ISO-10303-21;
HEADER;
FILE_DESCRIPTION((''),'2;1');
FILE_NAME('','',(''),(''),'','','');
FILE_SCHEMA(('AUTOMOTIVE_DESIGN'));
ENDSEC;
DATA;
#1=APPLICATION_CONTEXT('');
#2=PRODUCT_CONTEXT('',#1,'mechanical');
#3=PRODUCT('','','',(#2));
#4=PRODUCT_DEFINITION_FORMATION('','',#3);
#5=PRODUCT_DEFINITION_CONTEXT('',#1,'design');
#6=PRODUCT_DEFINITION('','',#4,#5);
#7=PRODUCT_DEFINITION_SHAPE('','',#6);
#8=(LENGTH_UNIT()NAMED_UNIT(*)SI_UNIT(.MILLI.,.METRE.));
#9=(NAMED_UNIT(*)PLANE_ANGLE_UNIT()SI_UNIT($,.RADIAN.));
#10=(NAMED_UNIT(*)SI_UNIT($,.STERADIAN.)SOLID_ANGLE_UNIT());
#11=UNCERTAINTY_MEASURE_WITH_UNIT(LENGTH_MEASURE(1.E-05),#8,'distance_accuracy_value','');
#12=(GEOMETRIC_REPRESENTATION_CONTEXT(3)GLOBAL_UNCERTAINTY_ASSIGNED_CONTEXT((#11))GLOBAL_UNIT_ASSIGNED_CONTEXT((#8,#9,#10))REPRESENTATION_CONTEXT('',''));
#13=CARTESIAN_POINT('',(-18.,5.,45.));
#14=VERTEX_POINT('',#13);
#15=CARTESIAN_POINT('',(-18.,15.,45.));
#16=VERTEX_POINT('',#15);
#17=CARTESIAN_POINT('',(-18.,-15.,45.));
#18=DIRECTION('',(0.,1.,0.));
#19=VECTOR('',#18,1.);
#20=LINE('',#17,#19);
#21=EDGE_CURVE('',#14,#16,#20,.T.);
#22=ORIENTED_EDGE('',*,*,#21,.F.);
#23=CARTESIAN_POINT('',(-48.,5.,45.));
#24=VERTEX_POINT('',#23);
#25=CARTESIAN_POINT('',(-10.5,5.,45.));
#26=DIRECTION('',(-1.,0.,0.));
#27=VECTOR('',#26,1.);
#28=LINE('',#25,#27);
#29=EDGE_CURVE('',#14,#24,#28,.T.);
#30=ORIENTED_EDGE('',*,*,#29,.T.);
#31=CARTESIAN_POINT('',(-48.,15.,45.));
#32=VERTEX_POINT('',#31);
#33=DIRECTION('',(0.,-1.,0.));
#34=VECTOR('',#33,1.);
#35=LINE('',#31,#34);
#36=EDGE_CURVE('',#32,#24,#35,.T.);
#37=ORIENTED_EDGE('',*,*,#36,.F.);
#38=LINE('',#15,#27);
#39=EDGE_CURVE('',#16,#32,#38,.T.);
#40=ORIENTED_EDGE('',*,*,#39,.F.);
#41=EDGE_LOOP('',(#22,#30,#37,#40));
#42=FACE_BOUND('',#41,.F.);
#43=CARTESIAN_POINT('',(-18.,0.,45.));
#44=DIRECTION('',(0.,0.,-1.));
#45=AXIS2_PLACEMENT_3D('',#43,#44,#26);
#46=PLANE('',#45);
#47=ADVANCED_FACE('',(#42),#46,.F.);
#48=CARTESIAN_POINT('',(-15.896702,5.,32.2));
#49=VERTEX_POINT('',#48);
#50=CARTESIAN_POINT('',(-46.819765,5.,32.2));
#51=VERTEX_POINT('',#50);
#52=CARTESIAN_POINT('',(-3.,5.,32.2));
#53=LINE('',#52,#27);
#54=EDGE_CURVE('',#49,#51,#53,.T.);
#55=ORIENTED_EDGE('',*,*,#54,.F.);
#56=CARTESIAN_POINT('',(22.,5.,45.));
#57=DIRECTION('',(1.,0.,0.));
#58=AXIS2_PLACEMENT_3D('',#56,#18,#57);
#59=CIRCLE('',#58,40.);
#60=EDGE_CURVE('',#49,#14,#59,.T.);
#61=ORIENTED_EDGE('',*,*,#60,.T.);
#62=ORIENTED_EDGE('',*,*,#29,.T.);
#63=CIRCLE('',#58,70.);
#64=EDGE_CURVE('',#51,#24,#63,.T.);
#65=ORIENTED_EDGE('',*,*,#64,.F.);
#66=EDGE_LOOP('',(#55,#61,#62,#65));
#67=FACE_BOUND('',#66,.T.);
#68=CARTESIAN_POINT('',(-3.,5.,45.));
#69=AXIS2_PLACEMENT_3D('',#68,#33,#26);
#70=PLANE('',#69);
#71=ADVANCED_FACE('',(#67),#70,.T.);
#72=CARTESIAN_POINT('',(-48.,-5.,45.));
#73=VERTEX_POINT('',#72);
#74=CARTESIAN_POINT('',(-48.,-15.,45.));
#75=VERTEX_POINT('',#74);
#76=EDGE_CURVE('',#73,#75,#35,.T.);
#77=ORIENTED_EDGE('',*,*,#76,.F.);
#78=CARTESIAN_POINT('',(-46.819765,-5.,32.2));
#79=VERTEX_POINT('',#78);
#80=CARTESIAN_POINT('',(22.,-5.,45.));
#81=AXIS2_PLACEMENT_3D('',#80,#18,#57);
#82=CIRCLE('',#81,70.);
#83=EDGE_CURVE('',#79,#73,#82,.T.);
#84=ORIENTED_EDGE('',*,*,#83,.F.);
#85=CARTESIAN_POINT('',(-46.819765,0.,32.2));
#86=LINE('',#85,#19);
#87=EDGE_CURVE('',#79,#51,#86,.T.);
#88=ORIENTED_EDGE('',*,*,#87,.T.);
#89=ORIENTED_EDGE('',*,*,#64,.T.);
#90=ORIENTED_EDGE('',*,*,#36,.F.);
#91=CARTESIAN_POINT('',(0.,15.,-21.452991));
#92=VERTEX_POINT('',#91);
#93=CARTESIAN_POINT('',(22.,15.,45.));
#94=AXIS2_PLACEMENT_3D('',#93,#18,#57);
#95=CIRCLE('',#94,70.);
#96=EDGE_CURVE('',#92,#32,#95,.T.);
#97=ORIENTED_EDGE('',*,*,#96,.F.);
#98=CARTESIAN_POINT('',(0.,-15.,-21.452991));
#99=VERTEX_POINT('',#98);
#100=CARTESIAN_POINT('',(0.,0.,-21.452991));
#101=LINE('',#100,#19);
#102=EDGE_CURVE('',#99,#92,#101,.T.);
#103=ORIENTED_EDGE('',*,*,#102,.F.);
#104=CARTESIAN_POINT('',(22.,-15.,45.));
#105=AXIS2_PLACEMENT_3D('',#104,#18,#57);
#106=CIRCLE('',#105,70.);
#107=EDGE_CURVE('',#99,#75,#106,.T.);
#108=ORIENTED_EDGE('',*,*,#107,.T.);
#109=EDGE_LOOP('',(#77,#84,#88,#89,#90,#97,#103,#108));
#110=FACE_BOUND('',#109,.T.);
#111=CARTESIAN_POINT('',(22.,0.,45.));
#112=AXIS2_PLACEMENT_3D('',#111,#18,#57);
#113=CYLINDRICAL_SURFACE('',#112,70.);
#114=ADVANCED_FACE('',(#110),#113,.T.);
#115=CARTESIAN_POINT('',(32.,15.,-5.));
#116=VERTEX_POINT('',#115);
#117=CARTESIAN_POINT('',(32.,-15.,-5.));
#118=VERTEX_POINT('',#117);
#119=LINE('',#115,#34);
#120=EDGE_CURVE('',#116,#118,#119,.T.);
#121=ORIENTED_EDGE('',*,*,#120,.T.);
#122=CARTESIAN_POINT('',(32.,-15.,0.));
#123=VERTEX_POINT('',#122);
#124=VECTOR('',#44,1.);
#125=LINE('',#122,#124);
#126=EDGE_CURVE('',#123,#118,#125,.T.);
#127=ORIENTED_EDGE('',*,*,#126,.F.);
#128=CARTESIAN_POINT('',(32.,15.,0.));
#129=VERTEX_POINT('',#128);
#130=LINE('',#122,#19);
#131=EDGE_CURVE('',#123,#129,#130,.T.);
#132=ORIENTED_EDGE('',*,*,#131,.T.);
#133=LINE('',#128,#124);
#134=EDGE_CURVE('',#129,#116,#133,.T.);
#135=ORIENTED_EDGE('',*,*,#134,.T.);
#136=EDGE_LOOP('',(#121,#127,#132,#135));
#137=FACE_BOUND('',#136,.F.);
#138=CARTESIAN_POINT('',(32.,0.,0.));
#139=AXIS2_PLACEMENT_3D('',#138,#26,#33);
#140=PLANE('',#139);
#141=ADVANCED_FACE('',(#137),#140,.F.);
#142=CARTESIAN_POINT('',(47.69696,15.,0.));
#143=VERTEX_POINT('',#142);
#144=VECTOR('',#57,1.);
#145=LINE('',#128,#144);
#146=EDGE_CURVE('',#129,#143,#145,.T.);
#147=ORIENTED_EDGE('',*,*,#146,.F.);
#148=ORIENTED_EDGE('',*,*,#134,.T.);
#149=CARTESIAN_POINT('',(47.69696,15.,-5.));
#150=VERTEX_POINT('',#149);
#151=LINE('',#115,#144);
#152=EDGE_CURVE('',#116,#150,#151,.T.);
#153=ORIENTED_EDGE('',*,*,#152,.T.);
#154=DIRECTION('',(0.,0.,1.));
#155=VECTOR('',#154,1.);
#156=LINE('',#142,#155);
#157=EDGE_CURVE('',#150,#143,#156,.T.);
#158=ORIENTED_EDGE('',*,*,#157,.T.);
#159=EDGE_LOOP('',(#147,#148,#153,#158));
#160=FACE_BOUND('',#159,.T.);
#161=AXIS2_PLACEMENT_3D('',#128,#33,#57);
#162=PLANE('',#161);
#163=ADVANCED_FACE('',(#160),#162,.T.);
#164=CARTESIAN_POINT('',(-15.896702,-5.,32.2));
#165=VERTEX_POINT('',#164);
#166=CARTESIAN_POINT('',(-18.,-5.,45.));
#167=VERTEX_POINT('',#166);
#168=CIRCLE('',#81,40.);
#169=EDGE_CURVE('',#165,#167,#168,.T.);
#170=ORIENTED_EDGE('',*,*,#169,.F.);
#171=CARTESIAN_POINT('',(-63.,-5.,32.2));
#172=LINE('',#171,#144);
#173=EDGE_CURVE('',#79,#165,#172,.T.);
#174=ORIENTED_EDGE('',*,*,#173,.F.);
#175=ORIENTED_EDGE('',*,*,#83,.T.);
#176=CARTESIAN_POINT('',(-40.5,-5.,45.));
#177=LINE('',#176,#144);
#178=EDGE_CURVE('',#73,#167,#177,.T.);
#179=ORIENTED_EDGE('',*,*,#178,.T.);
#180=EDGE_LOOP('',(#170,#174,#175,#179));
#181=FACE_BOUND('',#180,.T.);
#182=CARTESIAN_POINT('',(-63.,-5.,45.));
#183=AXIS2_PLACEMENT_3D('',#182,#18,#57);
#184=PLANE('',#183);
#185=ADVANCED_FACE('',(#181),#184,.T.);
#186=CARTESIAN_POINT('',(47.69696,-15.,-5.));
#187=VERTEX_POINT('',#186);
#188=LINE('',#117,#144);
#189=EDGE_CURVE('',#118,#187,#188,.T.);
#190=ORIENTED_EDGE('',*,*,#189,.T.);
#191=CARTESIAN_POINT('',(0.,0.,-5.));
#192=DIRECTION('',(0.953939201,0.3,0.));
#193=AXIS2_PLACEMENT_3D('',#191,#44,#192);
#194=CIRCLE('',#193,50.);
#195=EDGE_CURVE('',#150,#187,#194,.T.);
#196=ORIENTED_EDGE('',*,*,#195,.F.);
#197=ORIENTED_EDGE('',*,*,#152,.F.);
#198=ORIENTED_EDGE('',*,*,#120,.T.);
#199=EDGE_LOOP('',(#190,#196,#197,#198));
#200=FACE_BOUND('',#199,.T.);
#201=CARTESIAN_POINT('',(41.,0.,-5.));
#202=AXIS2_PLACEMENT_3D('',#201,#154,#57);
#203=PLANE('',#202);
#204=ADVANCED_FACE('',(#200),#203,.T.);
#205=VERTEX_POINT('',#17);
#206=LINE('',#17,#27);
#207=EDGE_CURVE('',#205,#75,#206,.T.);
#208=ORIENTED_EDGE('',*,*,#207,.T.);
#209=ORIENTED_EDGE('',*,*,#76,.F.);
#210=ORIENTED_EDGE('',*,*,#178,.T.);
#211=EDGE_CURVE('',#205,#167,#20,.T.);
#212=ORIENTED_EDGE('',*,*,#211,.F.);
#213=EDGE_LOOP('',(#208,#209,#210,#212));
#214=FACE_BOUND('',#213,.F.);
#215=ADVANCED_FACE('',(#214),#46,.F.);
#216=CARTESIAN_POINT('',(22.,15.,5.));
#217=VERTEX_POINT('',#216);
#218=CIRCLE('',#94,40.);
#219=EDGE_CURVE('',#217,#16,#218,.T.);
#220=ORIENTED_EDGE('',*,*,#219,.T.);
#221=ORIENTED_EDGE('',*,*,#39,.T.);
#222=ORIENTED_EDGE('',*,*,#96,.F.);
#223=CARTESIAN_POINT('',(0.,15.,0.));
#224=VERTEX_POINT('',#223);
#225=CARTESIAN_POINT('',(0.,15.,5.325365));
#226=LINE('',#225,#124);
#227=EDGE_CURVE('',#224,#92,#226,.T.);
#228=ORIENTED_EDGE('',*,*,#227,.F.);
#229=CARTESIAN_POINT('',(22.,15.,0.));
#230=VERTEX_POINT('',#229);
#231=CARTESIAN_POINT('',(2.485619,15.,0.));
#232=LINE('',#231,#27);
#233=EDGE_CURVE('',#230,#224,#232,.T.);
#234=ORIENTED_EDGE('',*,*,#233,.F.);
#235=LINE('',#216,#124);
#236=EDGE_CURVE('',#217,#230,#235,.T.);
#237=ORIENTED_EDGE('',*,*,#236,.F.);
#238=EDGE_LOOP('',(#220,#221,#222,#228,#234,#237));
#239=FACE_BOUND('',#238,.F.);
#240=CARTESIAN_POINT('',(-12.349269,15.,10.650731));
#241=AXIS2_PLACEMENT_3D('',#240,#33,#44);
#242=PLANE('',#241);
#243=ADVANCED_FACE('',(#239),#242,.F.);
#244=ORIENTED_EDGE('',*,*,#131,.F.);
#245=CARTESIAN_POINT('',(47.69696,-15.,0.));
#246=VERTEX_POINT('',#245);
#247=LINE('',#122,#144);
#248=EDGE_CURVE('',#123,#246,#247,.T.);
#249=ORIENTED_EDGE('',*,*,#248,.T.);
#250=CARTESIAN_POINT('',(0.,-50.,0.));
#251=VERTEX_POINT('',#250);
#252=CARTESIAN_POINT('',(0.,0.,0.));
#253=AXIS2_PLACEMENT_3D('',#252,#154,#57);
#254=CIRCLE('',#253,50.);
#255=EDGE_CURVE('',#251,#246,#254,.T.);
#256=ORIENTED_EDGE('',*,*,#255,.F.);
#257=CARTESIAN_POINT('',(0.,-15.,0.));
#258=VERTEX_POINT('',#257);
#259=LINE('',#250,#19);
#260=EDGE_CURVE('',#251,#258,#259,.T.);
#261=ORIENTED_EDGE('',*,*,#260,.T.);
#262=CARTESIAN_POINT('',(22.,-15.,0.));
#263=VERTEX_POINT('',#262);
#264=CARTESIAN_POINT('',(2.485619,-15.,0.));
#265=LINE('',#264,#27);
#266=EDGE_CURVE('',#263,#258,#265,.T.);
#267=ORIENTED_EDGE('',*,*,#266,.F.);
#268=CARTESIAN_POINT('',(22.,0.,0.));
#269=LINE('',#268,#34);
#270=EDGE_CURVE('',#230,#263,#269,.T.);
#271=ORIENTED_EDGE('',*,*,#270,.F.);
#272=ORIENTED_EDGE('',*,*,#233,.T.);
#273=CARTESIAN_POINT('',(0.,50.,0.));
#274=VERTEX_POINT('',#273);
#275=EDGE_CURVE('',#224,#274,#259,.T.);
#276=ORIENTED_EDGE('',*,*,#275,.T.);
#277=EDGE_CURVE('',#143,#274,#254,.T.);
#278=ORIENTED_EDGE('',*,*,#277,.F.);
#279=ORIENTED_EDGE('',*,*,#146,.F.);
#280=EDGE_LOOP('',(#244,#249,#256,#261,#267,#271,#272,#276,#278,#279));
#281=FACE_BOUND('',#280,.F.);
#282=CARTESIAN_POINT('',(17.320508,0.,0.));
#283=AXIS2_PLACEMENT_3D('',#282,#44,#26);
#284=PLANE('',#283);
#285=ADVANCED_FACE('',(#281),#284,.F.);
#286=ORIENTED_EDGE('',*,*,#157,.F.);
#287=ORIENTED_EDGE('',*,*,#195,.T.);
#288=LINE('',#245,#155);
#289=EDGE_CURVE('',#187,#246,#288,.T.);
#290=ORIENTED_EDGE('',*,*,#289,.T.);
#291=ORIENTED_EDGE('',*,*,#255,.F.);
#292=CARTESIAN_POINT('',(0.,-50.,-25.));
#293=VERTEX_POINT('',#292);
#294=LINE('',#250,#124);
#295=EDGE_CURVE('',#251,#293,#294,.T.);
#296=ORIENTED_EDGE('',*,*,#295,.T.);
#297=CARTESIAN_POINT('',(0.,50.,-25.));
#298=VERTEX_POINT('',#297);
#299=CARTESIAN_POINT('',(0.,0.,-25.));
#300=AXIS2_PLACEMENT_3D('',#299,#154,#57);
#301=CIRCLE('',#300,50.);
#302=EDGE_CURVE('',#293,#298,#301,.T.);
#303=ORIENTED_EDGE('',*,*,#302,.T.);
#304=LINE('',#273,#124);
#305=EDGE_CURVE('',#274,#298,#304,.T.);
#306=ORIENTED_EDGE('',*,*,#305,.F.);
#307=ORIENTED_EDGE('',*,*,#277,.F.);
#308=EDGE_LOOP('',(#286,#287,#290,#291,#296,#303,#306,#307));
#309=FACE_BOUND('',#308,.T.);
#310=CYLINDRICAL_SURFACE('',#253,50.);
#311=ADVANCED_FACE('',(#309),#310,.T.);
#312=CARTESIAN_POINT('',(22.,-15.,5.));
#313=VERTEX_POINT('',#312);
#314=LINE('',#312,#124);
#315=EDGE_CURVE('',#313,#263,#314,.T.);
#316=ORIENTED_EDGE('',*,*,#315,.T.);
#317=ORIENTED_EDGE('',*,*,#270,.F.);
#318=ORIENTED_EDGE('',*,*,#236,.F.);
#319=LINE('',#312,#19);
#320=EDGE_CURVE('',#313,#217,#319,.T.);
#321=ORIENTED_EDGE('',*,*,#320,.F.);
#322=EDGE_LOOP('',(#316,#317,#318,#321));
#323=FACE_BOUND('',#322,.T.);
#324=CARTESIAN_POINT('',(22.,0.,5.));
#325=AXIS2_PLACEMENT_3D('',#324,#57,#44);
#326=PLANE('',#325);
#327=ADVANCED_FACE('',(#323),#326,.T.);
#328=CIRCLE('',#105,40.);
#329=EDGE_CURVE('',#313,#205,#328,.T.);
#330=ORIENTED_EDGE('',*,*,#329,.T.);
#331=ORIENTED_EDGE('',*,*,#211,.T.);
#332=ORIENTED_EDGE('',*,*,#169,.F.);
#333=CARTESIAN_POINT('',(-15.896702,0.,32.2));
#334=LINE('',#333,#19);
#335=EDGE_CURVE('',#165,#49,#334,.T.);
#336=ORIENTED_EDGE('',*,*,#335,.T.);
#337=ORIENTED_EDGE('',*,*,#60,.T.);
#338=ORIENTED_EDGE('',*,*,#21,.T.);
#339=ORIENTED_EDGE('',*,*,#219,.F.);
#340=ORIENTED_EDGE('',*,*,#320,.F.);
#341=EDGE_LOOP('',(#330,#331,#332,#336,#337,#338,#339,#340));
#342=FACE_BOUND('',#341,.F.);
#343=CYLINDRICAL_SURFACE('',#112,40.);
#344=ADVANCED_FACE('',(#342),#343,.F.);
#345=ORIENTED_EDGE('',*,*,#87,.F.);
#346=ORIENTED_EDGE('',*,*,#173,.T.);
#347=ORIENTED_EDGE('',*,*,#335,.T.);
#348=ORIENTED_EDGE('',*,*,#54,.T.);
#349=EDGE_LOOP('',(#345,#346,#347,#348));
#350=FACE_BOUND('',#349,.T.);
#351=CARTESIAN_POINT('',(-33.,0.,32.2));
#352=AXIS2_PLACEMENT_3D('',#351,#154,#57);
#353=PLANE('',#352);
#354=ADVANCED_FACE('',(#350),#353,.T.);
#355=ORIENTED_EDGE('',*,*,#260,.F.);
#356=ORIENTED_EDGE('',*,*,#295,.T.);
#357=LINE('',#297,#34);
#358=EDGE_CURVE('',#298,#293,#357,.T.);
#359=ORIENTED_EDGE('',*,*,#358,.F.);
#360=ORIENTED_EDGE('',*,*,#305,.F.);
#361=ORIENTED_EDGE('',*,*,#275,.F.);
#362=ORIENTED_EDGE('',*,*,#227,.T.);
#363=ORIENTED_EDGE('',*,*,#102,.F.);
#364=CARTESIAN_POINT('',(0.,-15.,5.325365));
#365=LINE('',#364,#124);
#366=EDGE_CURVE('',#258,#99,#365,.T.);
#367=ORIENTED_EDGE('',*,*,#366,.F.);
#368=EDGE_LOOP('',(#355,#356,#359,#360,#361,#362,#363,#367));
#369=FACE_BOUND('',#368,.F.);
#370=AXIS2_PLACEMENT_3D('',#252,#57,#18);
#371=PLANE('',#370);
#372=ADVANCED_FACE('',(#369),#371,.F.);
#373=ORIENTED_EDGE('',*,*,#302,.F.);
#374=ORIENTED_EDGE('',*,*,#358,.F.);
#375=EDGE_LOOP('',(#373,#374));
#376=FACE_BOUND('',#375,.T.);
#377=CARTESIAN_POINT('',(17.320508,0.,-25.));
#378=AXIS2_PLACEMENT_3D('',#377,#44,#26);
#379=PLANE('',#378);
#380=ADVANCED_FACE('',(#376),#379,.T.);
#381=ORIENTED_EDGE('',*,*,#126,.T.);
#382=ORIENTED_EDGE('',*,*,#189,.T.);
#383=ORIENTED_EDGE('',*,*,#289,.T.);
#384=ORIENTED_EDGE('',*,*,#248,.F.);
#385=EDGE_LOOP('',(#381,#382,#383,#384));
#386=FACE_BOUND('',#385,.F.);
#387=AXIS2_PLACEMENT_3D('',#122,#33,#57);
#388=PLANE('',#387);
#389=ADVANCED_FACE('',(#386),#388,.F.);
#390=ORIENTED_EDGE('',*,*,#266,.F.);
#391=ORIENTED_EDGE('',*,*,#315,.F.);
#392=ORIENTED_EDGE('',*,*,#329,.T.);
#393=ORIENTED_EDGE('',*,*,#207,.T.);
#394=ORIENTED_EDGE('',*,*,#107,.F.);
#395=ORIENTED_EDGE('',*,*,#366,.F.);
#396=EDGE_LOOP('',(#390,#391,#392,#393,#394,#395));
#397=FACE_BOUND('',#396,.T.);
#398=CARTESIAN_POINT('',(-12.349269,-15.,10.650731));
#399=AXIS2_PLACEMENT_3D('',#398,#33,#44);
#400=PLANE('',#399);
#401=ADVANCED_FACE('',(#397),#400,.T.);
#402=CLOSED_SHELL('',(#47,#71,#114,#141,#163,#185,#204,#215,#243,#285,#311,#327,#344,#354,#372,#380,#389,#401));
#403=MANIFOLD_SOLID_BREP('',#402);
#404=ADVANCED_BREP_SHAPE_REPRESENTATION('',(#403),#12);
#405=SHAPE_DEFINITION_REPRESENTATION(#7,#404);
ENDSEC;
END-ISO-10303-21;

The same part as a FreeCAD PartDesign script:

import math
import FreeCAD as App
import Part
import Sketcher

V = App.Vector
Q = App.Units.Quantity

doc = App.newDocument("Part")
body = doc.addObject("PartDesign::Body", "Body")

sketch1 = body.newObject("Sketcher::SketchObject", "Sketch")
sketch1.AttachmentSupport = (doc.getObject("XY_Plane"), [""])
sketch1.MapMode = "FlatFace"
sketch1.addGeometry(Part.LineSegment(V(0, 50, 0), V(0, -50, 0)), False)
sketch1.addGeometry(Part.ArcOfCircle(Part.Circle(V(0, 0, 0), V(0, 0, 1), 50), math.radians(-90), math.radians(90)), False)
sketch1.addConstraint(Sketcher.Constraint("Coincident", 0, 1, 1, 2))
sketch1.addConstraint(Sketcher.Constraint("Coincident", 1, 1, 0, 2))
sketch1.addConstraint(Sketcher.Constraint("Vertical", 0))
sketch1.addConstraint(Sketcher.Constraint("Coincident", 1, 3, -1, 1))
sketch1.addConstraint(Sketcher.Constraint("PointOnObject", 0, 1, -2))
sketch1.addConstraint(Sketcher.Constraint("Radius", 1, Q("50 mm")))
pad1 = body.newObject("PartDesign::Pad", "Pad")
pad1.Profile = sketch1
pad1.Length = 25
pad1.Reversed = True

sketch2 = body.newObject("Sketcher::SketchObject", "Sketch001")
sketch2.AttachmentSupport = (doc.getObject("XY_Plane"), [""])
sketch2.MapMode = "FlatFace"
sketch2.addGeometry(Part.LineSegment(V(32, 15, 0), V(32, -15, 0)), False)
sketch2.addGeometry(Part.LineSegment(V(32, -15, 0), V(50, -15, 0)), False)
sketch2.addGeometry(Part.LineSegment(V(50, -15, 0), V(50, 15, 0)), False)
sketch2.addGeometry(Part.LineSegment(V(50, 15, 0), V(32, 15, 0)), False)
sketch2.addConstraint(Sketcher.Constraint("Coincident", 0, 2, 1, 1))
sketch2.addConstraint(Sketcher.Constraint("Coincident", 1, 2, 2, 1))
sketch2.addConstraint(Sketcher.Constraint("Coincident", 2, 2, 3, 1))
sketch2.addConstraint(Sketcher.Constraint("Coincident", 3, 2, 0, 1))
sketch2.addConstraint(Sketcher.Constraint("Vertical", 0))
sketch2.addConstraint(Sketcher.Constraint("Horizontal", 1))
sketch2.addConstraint(Sketcher.Constraint("Vertical", 2))
sketch2.addConstraint(Sketcher.Constraint("Horizontal", 3))
sketch2.addConstraint(Sketcher.Constraint("DistanceX", 1, 1, 1, 2, Q("18 mm")))
sketch2.addConstraint(Sketcher.Constraint("DistanceY", 0, 2, 0, 1, Q("30 mm")))
sketch2.addConstraint(Sketcher.Constraint("DistanceX", -1, 1, 0, 2, Q("32 mm")))
sketch2.addConstraint(Sketcher.Constraint("DistanceY", 0, 2, -1, 1, Q("15 mm")))
pocket1 = body.newObject("PartDesign::Pocket", "Pocket")
pocket1.Profile = sketch2
pocket1.Length = 5

sketch3 = body.newObject("Sketcher::SketchObject", "Sketch002")
sketch3.AttachmentSupport = (doc.getObject("XZ_Plane"), [""])
sketch3.MapMode = "FlatFace"
sketch3.addGeometry(Part.ArcOfCircle(Part.Circle(V(22, 45, 0), V(0, 0, 1), 40), math.radians(180), math.radians(270)), False)
sketch3.addGeometry(Part.LineSegment(V(-18, 45, 0), V(-48, 45, 0)), False)
sketch3.addGeometry(Part.ArcOfCircle(Part.Circle(V(22, 45, 0), V(0, 0, 1), 70), math.radians(180), math.radians(270)), False)
sketch3.addGeometry(Part.LineSegment(V(22, -25, 0), V(22, 5, 0)), False)
sketch3.addConstraint(Sketcher.Constraint("Coincident", 0, 1, 1, 1))
sketch3.addConstraint(Sketcher.Constraint("Coincident", 1, 2, 2, 1))
sketch3.addConstraint(Sketcher.Constraint("Coincident", 2, 2, 3, 1))
sketch3.addConstraint(Sketcher.Constraint("Coincident", 3, 2, 0, 2))
sketch3.addConstraint(Sketcher.Constraint("Horizontal", 1))
sketch3.addConstraint(Sketcher.Constraint("Vertical", 3))
sketch3.addConstraint(Sketcher.Constraint("Coincident", 2, 3, 0, 3))
sketch3.addConstraint(Sketcher.Constraint("Horizontal", 2, 3, 0, 1))
sketch3.addConstraint(Sketcher.Constraint("Vertical", 0, 3, 2, 2))
sketch3.addConstraint(Sketcher.Constraint("Radius", 0, Q("40 mm")))
sketch3.addConstraint(Sketcher.Constraint("Radius", 2, Q("70 mm")))
sketch3.addConstraint(Sketcher.Constraint("DistanceX", -1, 1, 0, 3, Q("22 mm")))
sketch3.addConstraint(Sketcher.Constraint("DistanceY", -1, 1, 0, 3, Q("45 mm")))
pad2 = body.newObject("PartDesign::Pad", "Pad001")
pad2.Profile = sketch3
pad2.Length = 30
pad2.Midplane = True

sketch4 = body.newObject("Sketcher::SketchObject", "Sketch003")
sketch4.AttachmentSupport = (doc.getObject("XY_Plane"), [""])
sketch4.MapMode = "FlatFace"
sketch4.AttachmentOffset = App.Placement(V(0, 0, 45), App.Rotation())
sketch4.addGeometry(Part.LineSegment(V(-3, -5, 0), V(-3, 5, 0)), False)
sketch4.addGeometry(Part.LineSegment(V(-3, 5, 0), V(-63, 5, 0)), False)
sketch4.addGeometry(Part.LineSegment(V(-63, 5, 0), V(-63, -5, 0)), False)
sketch4.addGeometry(Part.LineSegment(V(-63, -5, 0), V(-3, -5, 0)), False)
sketch4.addConstraint(Sketcher.Constraint("Coincident", 0, 2, 1, 1))
sketch4.addConstraint(Sketcher.Constraint("Coincident", 1, 2, 2, 1))
sketch4.addConstraint(Sketcher.Constraint("Coincident", 2, 2, 3, 1))
sketch4.addConstraint(Sketcher.Constraint("Coincident", 3, 2, 0, 1))
sketch4.addConstraint(Sketcher.Constraint("Vertical", 0))
sketch4.addConstraint(Sketcher.Constraint("Horizontal", 1))
sketch4.addConstraint(Sketcher.Constraint("Vertical", 2))
sketch4.addConstraint(Sketcher.Constraint("Horizontal", 3))
sketch4.addConstraint(Sketcher.Constraint("DistanceX", 1, 2, 1, 1, Q("60 mm")))
sketch4.addConstraint(Sketcher.Constraint("DistanceY", 0, 1, 0, 2, Q("10 mm")))
sketch4.addConstraint(Sketcher.Constraint("DistanceX", 0, 2, -1, 1, Q("3 mm")))
sketch4.addConstraint(Sketcher.Constraint("DistanceY", -1, 1, 0, 2, Q("5 mm")))
pocket2 = body.newObject("PartDesign::Pocket", "Pocket001")
pocket2.Profile = sketch4
pocket2.Length = 25.6
pocket2.Midplane = True

doc.recompute()
